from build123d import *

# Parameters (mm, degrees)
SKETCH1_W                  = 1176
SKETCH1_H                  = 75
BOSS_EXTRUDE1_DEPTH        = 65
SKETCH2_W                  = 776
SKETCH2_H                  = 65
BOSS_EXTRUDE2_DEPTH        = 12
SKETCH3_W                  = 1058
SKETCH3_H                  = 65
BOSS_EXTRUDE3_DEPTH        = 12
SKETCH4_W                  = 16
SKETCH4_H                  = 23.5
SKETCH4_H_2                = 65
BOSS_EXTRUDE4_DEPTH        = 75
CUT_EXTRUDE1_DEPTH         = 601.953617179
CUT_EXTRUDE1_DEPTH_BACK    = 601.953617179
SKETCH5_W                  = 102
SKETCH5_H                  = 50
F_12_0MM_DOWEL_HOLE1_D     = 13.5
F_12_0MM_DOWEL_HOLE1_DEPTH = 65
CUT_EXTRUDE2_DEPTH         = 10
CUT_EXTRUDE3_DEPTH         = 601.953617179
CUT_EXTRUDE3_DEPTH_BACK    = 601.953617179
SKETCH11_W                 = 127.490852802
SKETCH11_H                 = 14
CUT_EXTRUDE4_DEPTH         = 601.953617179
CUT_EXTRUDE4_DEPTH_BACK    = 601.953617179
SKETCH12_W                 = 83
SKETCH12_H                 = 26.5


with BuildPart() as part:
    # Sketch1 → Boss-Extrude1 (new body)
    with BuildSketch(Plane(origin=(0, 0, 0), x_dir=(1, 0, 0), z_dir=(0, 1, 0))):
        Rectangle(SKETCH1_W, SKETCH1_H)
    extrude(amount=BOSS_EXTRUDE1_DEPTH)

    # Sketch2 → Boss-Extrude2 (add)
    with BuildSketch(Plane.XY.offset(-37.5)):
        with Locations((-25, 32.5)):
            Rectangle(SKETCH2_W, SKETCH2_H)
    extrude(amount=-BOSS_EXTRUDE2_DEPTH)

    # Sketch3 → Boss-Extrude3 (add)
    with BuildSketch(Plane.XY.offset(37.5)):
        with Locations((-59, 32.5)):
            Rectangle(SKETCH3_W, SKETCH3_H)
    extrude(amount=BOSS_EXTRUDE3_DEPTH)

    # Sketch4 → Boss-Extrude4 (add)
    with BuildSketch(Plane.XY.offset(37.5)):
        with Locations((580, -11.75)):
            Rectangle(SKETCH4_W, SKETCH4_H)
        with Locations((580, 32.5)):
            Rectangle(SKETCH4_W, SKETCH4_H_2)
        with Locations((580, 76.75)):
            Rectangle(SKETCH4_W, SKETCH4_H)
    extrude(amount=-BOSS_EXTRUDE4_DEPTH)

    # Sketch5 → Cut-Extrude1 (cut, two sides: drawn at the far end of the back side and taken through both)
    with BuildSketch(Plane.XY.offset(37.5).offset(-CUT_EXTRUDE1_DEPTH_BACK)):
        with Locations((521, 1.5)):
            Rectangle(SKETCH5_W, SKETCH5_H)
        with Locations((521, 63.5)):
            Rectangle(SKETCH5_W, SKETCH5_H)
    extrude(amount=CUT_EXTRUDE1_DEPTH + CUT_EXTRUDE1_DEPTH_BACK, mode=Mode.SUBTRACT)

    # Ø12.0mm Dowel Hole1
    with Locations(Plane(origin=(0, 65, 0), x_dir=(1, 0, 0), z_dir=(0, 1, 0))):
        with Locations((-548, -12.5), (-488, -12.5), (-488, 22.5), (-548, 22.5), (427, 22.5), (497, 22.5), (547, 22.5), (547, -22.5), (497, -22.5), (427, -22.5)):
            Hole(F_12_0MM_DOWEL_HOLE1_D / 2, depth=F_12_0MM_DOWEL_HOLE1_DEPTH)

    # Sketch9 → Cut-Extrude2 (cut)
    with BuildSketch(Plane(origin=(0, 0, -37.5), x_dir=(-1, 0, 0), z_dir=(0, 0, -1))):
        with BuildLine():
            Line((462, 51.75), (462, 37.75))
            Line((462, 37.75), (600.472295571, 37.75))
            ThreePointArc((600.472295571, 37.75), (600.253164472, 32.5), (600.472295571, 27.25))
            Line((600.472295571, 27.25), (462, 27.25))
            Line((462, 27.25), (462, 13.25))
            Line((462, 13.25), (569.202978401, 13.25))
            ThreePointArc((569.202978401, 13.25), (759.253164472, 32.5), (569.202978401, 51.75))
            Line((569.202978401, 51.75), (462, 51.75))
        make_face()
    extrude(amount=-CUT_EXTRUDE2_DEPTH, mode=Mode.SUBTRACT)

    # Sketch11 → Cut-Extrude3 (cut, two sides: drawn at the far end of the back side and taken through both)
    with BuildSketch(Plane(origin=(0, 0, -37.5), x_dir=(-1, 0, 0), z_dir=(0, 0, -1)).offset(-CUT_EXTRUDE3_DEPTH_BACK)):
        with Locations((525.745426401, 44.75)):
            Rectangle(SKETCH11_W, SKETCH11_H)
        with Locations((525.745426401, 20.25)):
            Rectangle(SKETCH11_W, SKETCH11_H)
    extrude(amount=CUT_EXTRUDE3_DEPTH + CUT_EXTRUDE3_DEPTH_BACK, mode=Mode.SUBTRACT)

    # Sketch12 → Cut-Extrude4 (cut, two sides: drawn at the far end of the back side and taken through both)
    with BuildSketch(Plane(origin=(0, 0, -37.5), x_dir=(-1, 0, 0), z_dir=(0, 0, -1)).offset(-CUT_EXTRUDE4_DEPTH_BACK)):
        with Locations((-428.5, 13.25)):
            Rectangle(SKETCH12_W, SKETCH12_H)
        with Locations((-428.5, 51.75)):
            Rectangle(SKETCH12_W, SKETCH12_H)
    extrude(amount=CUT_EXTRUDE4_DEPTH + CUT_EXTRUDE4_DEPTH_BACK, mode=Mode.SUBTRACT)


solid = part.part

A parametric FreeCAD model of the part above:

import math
import FreeCAD as App
import Part
import Sketcher
from FreeCAD import Vector
Q = App.Units.Quantity


def add_polygon(sketch, points):
    """Adds a closed chain of lines whose ends are joined by coincident constraints."""
    first, n = sketch.GeometryCount, len(points)
    for a, b in zip(points, points[1:] + points[:1]):
        sketch.addGeometry(Part.LineSegment(App.Vector(*a, 0), App.Vector(*b, 0)), False)
    for i in range(n):
        sketch.addConstraint(Sketcher.Constraint("Coincident", first + i, 2, first + (i + 1) % n, 1))

doc = App.newDocument("Part")
params = doc.addObject("Spreadsheet::Sheet", "Params")
for row, (alias, value) in enumerate([
    ("sketch1_width", "1176 mm"),
    ("sketch1_height", "75 mm"),
    ("pad1_length", "65 mm"),
    ("sketch2_width", "776 mm"),
    ("sketch2_height", "65 mm"),
    ("pad2_length", "12 mm"),
    ("sketch3_width", "1058 mm"),
    ("sketch3_height", "65 mm"),
    ("pad3_length", "12 mm"),
    ("sketch4_width", "16 mm"),
    ("sketch4_height", "112 mm"),
    ("pad4_length", "75 mm"),
    ("sketch5_width", "102 mm"),
    ("sketch5_height", "50 mm"),
    ("sketch6_diameter", "13.5 mm"),
    ("hole_diameter", "13.5 mm"),
    ("hole_depth", "65 mm"),
    ("sketch7_radius", "63 mm"),
    ("sketch7_radius2", "96 mm"),
    ("sketch7_height", "14 mm"),
    ("pocket2_length", "10 mm"),
    ("sketch8_height", "14 mm"),
    ("sketch9_width", "83 mm"),
    ("sketch9_height", "26.5 mm"),
], start=1):
    params.set(f"A{row}", alias)
    params.set(f"B{row}", "=" + value)
    params.setAlias(f"B{row}", alias)

body = doc.addObject("PartDesign::Body", "Body")

# Sketch on XZ plane
sketch1 = body.newObject("Sketcher::SketchObject", "Sketch")
sketch1.AttachmentSupport = (doc.getObject("XZ_Plane"), [""])
sketch1.MapMode = "FlatFace"
add_polygon(sketch1, [(-588, -38), (-588, 38), (588, 38), (588, -38)])  # lines 0-3
sketch1.addConstraint([
    Sketcher.Constraint("Vertical", 0),
    Sketcher.Constraint("Horizontal", 1),
    Sketcher.Constraint("Vertical", 2),
    Sketcher.Constraint("Horizontal", 3),
    Sketcher.Constraint("Symmetric", 0, 2, 2, 2, -1, 1),
    Sketcher.Constraint("DistanceX", 1, 1, 1, 2, Q("1176 mm")),
    Sketcher.Constraint("DistanceY", 0, 1, 0, 2, Q("75 mm")),
])
sketch1.setExpression("Constraints[9]", "Params.sketch1_width")
sketch1.setExpression("Constraints[10]", "Params.sketch1_height")
pad1 = body.newObject("PartDesign::Pad", "Pad")
pad1.Profile = sketch1
pad1.setExpression("Length", "Params.pad1_length")
pad1.Reversed = True

# Sketch on XY plane
sketch2 = body.newObject("Sketcher::SketchObject", "Sketch001")
sketch2.AttachmentSupport = (doc.getObject("XY_Plane"), [""])
sketch2.MapMode = "FlatFace"
sketch2.AttachmentOffset = App.Placement(Vector(0, 0, -37.5), App.Rotation())
add_polygon(sketch2, [(-413, 65), (-413, 0), (363, 0), (363, 65)])  # lines 0-3
sketch2.addConstraint([
    Sketcher.Constraint("Vertical", 0),
    Sketcher.Constraint("Horizontal", 1),
    Sketcher.Constraint("Vertical", 2),
    Sketcher.Constraint("Horizontal", 3),
    Sketcher.Constraint("PointOnObject", 0, 2, -1),
    Sketcher.Constraint("DistanceX", 1, 1, 1, 2, Q("776 mm")),
    Sketcher.Constraint("DistanceY", 0, 2, 0, 1, Q("65 mm")),
    Sketcher.Constraint("DistanceX", 0, 2, -1, 1, Q("413 mm")),
])
sketch2.setExpression("Constraints[9]", "Params.sketch2_width")
sketch2.setExpression("Constraints[10]", "Params.sketch2_height")
pad2 = body.newObject("PartDesign::Pad", "Pad001")
pad2.Profile = sketch2
pad2.setExpression("Length", "Params.pad2_length")
pad2.Reversed = True

# Sketch on XY plane
sketch3 = body.newObject("Sketcher::SketchObject", "Sketch002")
sketch3.AttachmentSupport = (doc.getObject("XY_Plane"), [""])
sketch3.MapMode = "FlatFace"
sketch3.AttachmentOffset = App.Placement(Vector(0, 0, 37.5), App.Rotation())
add_polygon(sketch3, [(-588, 65), (-588, 0), (470, 0), (470, 65)])  # lines 0-3
sketch3.addConstraint([
    Sketcher.Constraint("Vertical", 0),
    Sketcher.Constraint("Horizontal", 1),
    Sketcher.Constraint("Vertical", 2),
    Sketcher.Constraint("Horizontal", 3),
    Sketcher.Constraint("PointOnObject", 0, 2, -1),
    Sketcher.Constraint("DistanceX", 1, 1, 1, 2, Q("1058 mm")),
    Sketcher.Constraint("DistanceY", 0, 2, 0, 1, Q("65 mm")),
    Sketcher.Constraint("DistanceX", 0, 2, -1, 1, Q("588 mm")),
])
sketch3.setExpression("Constraints[9]", "Params.sketch3_width")
sketch3.setExpression("Constraints[10]", "Params.sketch3_height")
pad3 = body.newObject("PartDesign::Pad", "Pad002")
pad3.Profile = sketch3
pad3.setExpression("Length", "Params.pad3_length")

# Sketch on XY plane
sketch4 = body.newObject("Sketcher::SketchObject", "Sketch003")
sketch4.AttachmentSupport = (doc.getObject("XY_Plane"), [""])
sketch4.MapMode = "FlatFace"
sketch4.AttachmentOffset = App.Placement(Vector(0, 0, 37.5), App.Rotation())
add_polygon(sketch4, [(572, -24), (588, -24), (588, 88), (572, 88)])  # lines 0-3
sketch4.addConstraint([
    Sketcher.Constraint("Horizontal", 0),
    Sketcher.Constraint("Vertical", 1),
    Sketcher.Constraint("Horizontal", 2),
    Sketcher.Constraint("Vertical", 3),
    Sketcher.Constraint("DistanceX", 0, 1, 0, 2, Q("16 mm")),
    Sketcher.Constraint("DistanceY", 1, 1, 1, 2, Q("112 mm")),
    Sketcher.Constraint("DistanceX", -1, 1, 0, 2, Q("588 mm")),
    Sketcher.Constraint("DistanceY", 0, 2, -1, 1, Q("23.5 mm")),
])
sketch4.setExpression("Constraints[8]", "Params.sketch4_width")
sketch4.setExpression("Constraints[9]", "Params.sketch4_height")
pad4 = body.newObject("PartDesign::Pad", "Pad003")
pad4.Profile = sketch4
pad4.setExpression("Length", "Params.pad4_length")
pad4.Reversed = True

# Sketch on XY plane
sketch5 = body.newObject("Sketcher::SketchObject", "Sketch004")
sketch5.AttachmentSupport = (doc.getObject("XY_Plane"), [""])
sketch5.MapMode = "FlatFace"
sketch5.AttachmentOffset = App.Placement(Vector(0, 0, 37.5), App.Rotation())
add_polygon(sketch5, [(470, 26), (470, -24), (572, -24), (572, 26)])  # lines 0-3
add_polygon(sketch5, [(470, 88), (470, 38), (572, 38), (572, 88)])  # lines 4-7
sketch5.addConstraint([
    Sketcher.Constraint("Vertical", 0),
    Sketcher.Constraint("Horizontal", 1),
    Sketcher.Constraint("Vertical", 2),
    Sketcher.Constraint("Horizontal", 3),
    Sketcher.Constraint("Vertical", 4),
    Sketcher.Constraint("Horizontal", 5),
    Sketcher.Constraint("Vertical", 6),
    Sketcher.Constraint("Horizontal", 7),
    Sketcher.Constraint("Vertical", 3, 2, 4, 2),
    Sketcher.Constraint("Vertical", 2, 2, 5, 2),
    Sketcher.Constraint("Equal", 2, 4),
    Sketcher.Constraint("DistanceX", 1, 1, 1, 2, Q("102 mm")),
    Sketcher.Constraint("DistanceY", 0, 2, 0, 1, Q("50 mm")),
    Sketcher.Constraint("DistanceX", -1, 1, 0, 2, Q("470 mm")),
    Sketcher.Constraint("DistanceY", 3, 2, 4, 2, Q("12 mm")),
    Sketcher.Constraint("DistanceY", 0, 2, -1, 1, Q("23.5 mm")),
])
sketch5.setExpression("Constraints[19]", "Params.sketch5_width")
sketch5.setExpression("Constraints[20]", "Params.sketch5_height")
pocket1 = body.newObject("PartDesign::Pocket", "Pocket")
pocket1.Profile = sketch5
pocket1.Type = "ThroughAll"
pocket1.Midplane = True

# Sketch on XZ plane
sketch6 = body.newObject("Sketcher::SketchObject", "Sketch005")
sketch6.AttachmentSupport = (doc.getObject("XZ_Plane"), [""])
sketch6.MapMode = "FlatFace"
sketch6.AttachmentOffset = App.Placement(Vector(0, 0, -65), App.Rotation())
sketch6.addGeometry([
    Part.Circle(Vector(-548, 12, 0), Vector(0, 0, 1), 7),  # 0
    Part.Circle(Vector(-488, 12, 0), Vector(0, 0, 1), 7),  # 1
    Part.Circle(Vector(-488, -22, 0), Vector(0, 0, 1), 7),  # 2
    Part.Circle(Vector(-548, -22, 0), Vector(0, 0, 1), 7),  # 3
    Part.Circle(Vector(427, -22, 0), Vector(0, 0, 1), 7),  # 4
    Part.Circle(Vector(497, -22, 0), Vector(0, 0, 1), 7),  # 5
    Part.Circle(Vector(547, -22, 0), Vector(0, 0, 1), 7),  # 6
    Part.Circle(Vector(547, 22, 0), Vector(0, 0, 1), 7),  # 7
    Part.Circle(Vector(497, 22, 0), Vector(0, 0, 1), 7),  # 8
    Part.Circle(Vector(427, 22, 0), Vector(0, 0, 1), 7),  # 9
], False)
sketch6.addConstraint([
    Sketcher.Constraint("Equal", 0, 1),
    Sketcher.Constraint("Equal", 1, 2),
    Sketcher.Constraint("Equal", 2, 3),
    Sketcher.Constraint("Equal", 3, 4),
    Sketcher.Constraint("Equal", 4, 5),
    Sketcher.Constraint("Equal", 5, 6),
    Sketcher.Constraint("Equal", 6, 7),
    Sketcher.Constraint("Equal", 7, 8),
    Sketcher.Constraint("Equal", 8, 9),
    Sketcher.Constraint("Symmetric", 6, 3, 7, 3, -1),
    Sketcher.Constraint("Symmetric", 5, 3, 8, 3, -1),
    Sketcher.Constraint("Symmetric", 4, 3, 9, 3, -1),
    Sketcher.Constraint("Horizontal", 0, 3, 1, 3),
    Sketcher.Constraint("Horizontal", 2, 3, 3, 3),
    Sketcher.Constraint("Horizontal", 3, 3, 4, 3),
    Sketcher.Constraint("Horizontal", 4, 3, 5, 3),
    Sketcher.Constraint("Horizontal", 5, 3, 6, 3),
    Sketcher.Constraint("Vertical", 1, 3, 2, 3),
    Sketcher.Constraint("Vertical", 0, 3, 3, 3),
    Sketcher.Constraint("Diameter", 0, Q("13.5 mm")),
    Sketcher.Constraint("DistanceX", 0, 3, -1, 1, Q("548 mm")),
    Sketcher.Constraint("DistanceX", 1, 3, -1, 1, Q("488 mm")),
    Sketcher.Constraint("DistanceX", -1, 1, 4, 3, Q("427 mm")),
    Sketcher.Constraint("DistanceX", -1, 1, 5, 3, Q("497 mm")),
    Sketcher.Constraint("DistanceX", -1, 1, 6, 3, Q("547 mm")),
    Sketcher.Constraint("DistanceY", 2, 3, 1, 3, Q("35 mm")),
    Sketcher.Constraint("DistanceY", 6, 3, 7, 3, Q("45 mm")),
])
sketch6.setExpression("Constraints[19]", "Params.sketch6_diameter")
doc.recompute()
hole = body.newObject("PartDesign::Hole", "Hole")
hole.Profile = sketch6
hole.ThreadType = "None"
hole.setExpression("Diameter", "Params.hole_diameter")
hole.DepthType = "Dimension"
hole.setExpression("Depth", "Params.hole_depth")
hole.DrillPoint = "Flat"
hole.Reversed = True

# Sketch on XY plane
sketch7 = body.newObject("Sketcher::SketchObject", "Sketch006")
sketch7.AttachmentSupport = (doc.getObject("XY_Plane"), [""])
sketch7.MapMode = "FlatFace"
sketch7.AttachmentOffset = App.Placement(Vector(0, 0, -37.5), App.Rotation())
sketch7.addGeometry([
    Part.LineSegment(Vector(-462, 52, 0), Vector(-462, 38, 0)),  # 0
    Part.LineSegment(Vector(-462, 38, 0), Vector(-600, 38, 0)),  # 1
    Part.ArcOfCircle(Part.Circle(Vector(-663, 32, 0), Vector(0, 0, 1), 63), math.radians(-4.78), math.radians(4.78)),  # 2
    Part.LineSegment(Vector(-600, 27, 0), Vector(-462, 27, 0)),  # 3
    Part.LineSegment(Vector(-462, 27, 0), Vector(-462, 13, 0)),  # 4
    Part.LineSegment(Vector(-462, 13, 0), Vector(-569, 13, 0)),  # 5
    Part.ArcOfCircle(Part.Circle(Vector(-663, 32, 0), Vector(0, 0, 1), 96), math.radians(12), math.radians(348)),  # 6
    Part.LineSegment(Vector(-569, 52, 0), Vector(-462, 52, 0)),  # 7
], False)
sketch7.addConstraint([
    Sketcher.Constraint("Coincident", 0, 2, 1, 1),
    Sketcher.Constraint("Coincident", 1, 2, 2, 2),
    Sketcher.Constraint("Coincident", 2, 1, 3, 1),
    Sketcher.Constraint("Coincident", 3, 2, 4, 1),
    Sketcher.Constraint("Coincident", 4, 2, 5, 1),
    Sketcher.Constraint("Coincident", 5, 2, 6, 2),
    Sketcher.Constraint("Coincident", 6, 1, 7, 1),
    Sketcher.Constraint("Coincident", 7, 2, 0, 1),
    Sketcher.Constraint("Vertical", 0),
    Sketcher.Constraint("Horizontal", 1),
    Sketcher.Constraint("Horizontal", 3),
    Sketcher.Constraint("Vertical", 4),
    Sketcher.Constraint("Horizontal", 5),
    Sketcher.Constraint("Horizontal", 7),
    Sketcher.Constraint("Coincident", 6, 3, 2, 3),
    Sketcher.Constraint("Vertical", 1, 2, 2, 1),
    Sketcher.Constraint("Vertical", 0, 2, 3, 2),
    Sketcher.Constraint("Vertical", 5, 2, 6, 1),
    Sketcher.Constraint("Radius", 2, Q("63 mm")),
    Sketcher.Constraint("Radius", 6, Q("96 mm")),
    Sketcher.Constraint("DistanceY", 0, 2, 0, 1, Q("14 mm")),
    Sketcher.Constraint("DistanceX", 0, 2, -1, 1, Q("462 mm")),
    Sketcher.Constraint("DistanceY", -1, 1, 2, 3, Q("32.5 mm")),
    Sketcher.Constraint("DistanceY", 2, 1, 1, 2, Q("10.5 mm")),
    Sketcher.Constraint("DistanceX", 5, 2, 5, 1, Q("107.202978 mm")),
])
sketch7.setExpression("Constraints[18]", "Params.sketch7_radius")
sketch7.setExpression("Constraints[19]", "Params.sketch7_radius2")
sketch7.setExpression("Constraints[20]", "Params.sketch7_height")
pocket2 = body.newObject("PartDesign::Pocket", "Pocket001")
pocket2.Profile = sketch7
pocket2.setExpression("Length", "Params.pocket2_length")
pocket2.Reversed = True

# Sketch on XY plane
sketch8 = body.newObject("Sketcher::SketchObject", "Sketch007")
sketch8.AttachmentSupport = (doc.getObject("XY_Plane"), [""])
sketch8.MapMode = "FlatFace"
sketch8.AttachmentOffset = App.Placement(Vector(0, 0, -37.5), App.Rotation())
add_polygon(sketch8, [(-462, 52), (-462, 38), (-589, 38), (-589, 52)])  # lines 0-3
add_polygon(sketch8, [(-462, 27), (-462, 13), (-589, 13), (-589, 27)])  # lines 4-7
sketch8.addConstraint([
    Sketcher.Constraint("Vertical", 0),
    Sketcher.Constraint("Horizontal", 1),
    Sketcher.Constraint("Vertical", 2),
    Sketcher.Constraint("Horizontal", 3),
    Sketcher.Constraint("Vertical", 4),
    Sketcher.Constraint("Horizontal", 5),
    Sketcher.Constraint("Vertical", 6),
    Sketcher.Constraint("Horizontal", 7),
    Sketcher.Constraint("Vertical", 3, 2, 4, 2),
    Sketcher.Constraint("Vertical", 2, 2, 5, 2),
    Sketcher.Constraint("Equal", 2, 4),
    Sketcher.Constraint("DistanceY", 0, 2, 0, 1, Q("14 mm")),
    Sketcher.Constraint("DistanceX", 0, 2, -1, 1, Q("462 mm")),
    Sketcher.Constraint("DistanceY", 4, 2, 0, 2, Q("24.5 mm")),
    Sketcher.Constraint("DistanceY", -1, 1, 0, 2, Q("37.75 mm")),
    Sketcher.Constraint("DistanceX", 1, 2, 1, 1, Q("127.490853 mm")),
])
sketch8.setExpression("Constraints[19]", "Params.sketch8_height")
pocket3 = body.newObject("PartDesign::Pocket", "Pocket002")
pocket3.Profile = sketch8
pocket3.Type = "ThroughAll"
pocket3.Midplane = True

# Sketch on XY plane
sketch9 = body.newObject("Sketcher::SketchObject", "Sketch008")
sketch9.AttachmentSupport = (doc.getObject("XY_Plane"), [""])
sketch9.MapMode = "FlatFace"
sketch9.AttachmentOffset = App.Placement(Vector(0, 0, -37.5), App.Rotation())
add_polygon(sketch9, [(470, 26), (470, 0), (387, 0), (387, 26)])  # lines 0-3
add_polygon(sketch9, [(470, 65), (470, 38), (387, 38), (387, 65)])  # lines 4-7
sketch9.addConstraint([
    Sketcher.Constraint("Vertical", 0),
    Sketcher.Constraint("Horizontal", 1),
    Sketcher.Constraint("Vertical", 2),
    Sketcher.Constraint("Horizontal", 3),
    Sketcher.Constraint("Vertical", 4),
    Sketcher.Constraint("Horizontal", 5),
    Sketcher.Constraint("Vertical", 6),
    Sketcher.Constraint("Horizontal", 7),
    Sketcher.Constraint("PointOnObject", 0, 2, -1),
    Sketcher.Constraint("Vertical", 3, 2, 4, 2),
    Sketcher.Constraint("Vertical", 2, 2, 5, 2),
    Sketcher.Constraint("Equal", 2, 4),
    Sketcher.Constraint("DistanceX", 1, 2, 1, 1, Q("83 mm")),
    Sketcher.Constraint("DistanceY", 0, 2, 0, 1, Q("26.5 mm")),
    Sketcher.Constraint("DistanceX", -1, 1, 0, 2, Q("470 mm")),
    Sketcher.Constraint("DistanceY", -1, 1, 6, 2, Q("65 mm")),
])
sketch9.setExpression("Constraints[20]", "Params.sketch9_width")
sketch9.setExpression("Constraints[21]", "Params.sketch9_height")
pocket4 = body.newObject("PartDesign::Pocket", "Pocket003")
pocket4.Profile = sketch9
pocket4.Type = "ThroughAll"
pocket4.Midplane = True

doc.recompute()
